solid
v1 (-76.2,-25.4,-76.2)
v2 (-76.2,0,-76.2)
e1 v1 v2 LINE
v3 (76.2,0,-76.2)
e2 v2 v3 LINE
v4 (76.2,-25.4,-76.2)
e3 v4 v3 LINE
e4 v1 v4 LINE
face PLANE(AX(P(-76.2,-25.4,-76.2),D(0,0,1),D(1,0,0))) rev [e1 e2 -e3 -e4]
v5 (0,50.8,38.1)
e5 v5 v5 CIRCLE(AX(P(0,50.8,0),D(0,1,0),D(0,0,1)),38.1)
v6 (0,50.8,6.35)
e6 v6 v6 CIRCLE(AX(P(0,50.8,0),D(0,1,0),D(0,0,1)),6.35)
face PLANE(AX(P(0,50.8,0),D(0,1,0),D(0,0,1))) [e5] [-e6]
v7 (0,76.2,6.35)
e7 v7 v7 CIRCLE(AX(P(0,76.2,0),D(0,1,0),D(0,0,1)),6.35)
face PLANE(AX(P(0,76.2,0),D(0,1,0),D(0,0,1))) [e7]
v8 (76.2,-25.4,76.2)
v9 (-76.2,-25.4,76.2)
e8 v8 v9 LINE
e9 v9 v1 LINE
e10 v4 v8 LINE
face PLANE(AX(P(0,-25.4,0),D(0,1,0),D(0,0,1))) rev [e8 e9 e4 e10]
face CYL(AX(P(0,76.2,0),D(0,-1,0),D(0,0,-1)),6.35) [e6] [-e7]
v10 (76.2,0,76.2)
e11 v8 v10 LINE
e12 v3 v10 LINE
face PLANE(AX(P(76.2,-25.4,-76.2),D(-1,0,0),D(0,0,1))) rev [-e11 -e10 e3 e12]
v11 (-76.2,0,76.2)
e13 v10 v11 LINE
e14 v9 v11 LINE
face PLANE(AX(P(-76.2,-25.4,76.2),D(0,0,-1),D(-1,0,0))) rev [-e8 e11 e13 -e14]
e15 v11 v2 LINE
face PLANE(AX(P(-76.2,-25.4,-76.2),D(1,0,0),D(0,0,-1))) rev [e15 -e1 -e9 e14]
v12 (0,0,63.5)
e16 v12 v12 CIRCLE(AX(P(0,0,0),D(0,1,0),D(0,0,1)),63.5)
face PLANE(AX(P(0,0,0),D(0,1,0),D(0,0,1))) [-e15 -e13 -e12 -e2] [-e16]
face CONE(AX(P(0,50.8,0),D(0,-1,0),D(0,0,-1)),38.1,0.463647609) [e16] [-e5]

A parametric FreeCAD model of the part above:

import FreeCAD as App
import Part
import Sketcher

V = App.Vector
Q = App.Units.Quantity


def add_polygon(sketch, points):
    """Adds a closed chain of lines whose ends are joined by coincident constraints."""
    first, n = sketch.GeometryCount, len(points)
    for a, b in zip(points, points[1:] + points[:1]):
        sketch.addGeometry(Part.LineSegment(App.Vector(*a, 0), App.Vector(*b, 0)), False)
    for i in range(n):
        sketch.addConstraint(Sketcher.Constraint("Coincident", first + i, 2, first + (i + 1) % n, 1))

doc = App.newDocument("Part")
body = doc.addObject("PartDesign::Body", "Body")

# Sketch on XZ plane
sketch1 = body.newObject("Sketcher::SketchObject", "Sketch")
sketch1.AttachmentSupport = (doc.getObject("XZ_Plane"), [""])
sketch1.MapMode = "FlatFace"
sketch1.addGeometry(Part.Circle(V(0, 0, 0), V(0, 0, 1), 63.5), False)
sketch1.addConstraint([
    Sketcher.Constraint("Coincident", 0, 3, -1, 1),
    Sketcher.Constraint("Diameter", 0, Q("5 in")),
])

# Sketch on XZ plane
sketch2 = body.newObject("Sketcher::SketchObject", "Sketch001")
sketch2.AttachmentSupport = (doc.getObject("XZ_Plane"), [""])
sketch2.MapMode = "FlatFace"
sketch2.AttachmentOffset = App.Placement(V(0, 0, -2 * 25.4), App.Rotation())
sketch2.addGeometry(Part.Circle(V(0, 0, 0), V(0, 0, 1), 38.1), False)
sketch2.addConstraint([
    Sketcher.Constraint("Coincident", 0, 3, -1, 1),
    Sketcher.Constraint("Diameter", 0, Q("3 in")),
])

additiveloft = body.newObject("PartDesign::AdditiveLoft", "AdditiveLoft")
additiveloft.Profile = sketch1
additiveloft.Sections = [sketch2]

# Sketch on XZ plane
sketch3 = body.newObject("Sketcher::SketchObject", "Sketch002")
sketch3.AttachmentSupport = (doc.getObject("XZ_Plane"), [""])
sketch3.MapMode = "FlatFace"
add_polygon(sketch3, [(-76.2, 76.2), (-76.2, -76.2), (76.2, -76.2), (76.2, 76.2)])  # lines 0-3
sketch3.addConstraint([
    Sketcher.Constraint("Vertical", 0),
    Sketcher.Constraint("Horizontal", 1),
    Sketcher.Constraint("Vertical", 2),
    Sketcher.Constraint("Horizontal", 3),
    Sketcher.Constraint("Symmetric", 0, 2, 2, 2, -1, 1),
    Sketcher.Constraint("Equal", 3, 0),
    Sketcher.Constraint("DistanceX", 1, 1, 1, 2, Q("6 in")),
])
pad1 = body.newObject("PartDesign::Pad", "Pad")
pad1.Profile = sketch3
pad1.Length = Q("1 in")

# Sketch on XZ plane
sketch4 = body.newObject("Sketcher::SketchObject", "Sketch003")
sketch4.AttachmentSupport = (doc.getObject("XZ_Plane"), [""])
sketch4.MapMode = "FlatFace"
sketch4.AttachmentOffset = App.Placement(V(0, 0, -2 * 25.4), App.Rotation())
sketch4.addGeometry(Part.Circle(V(0, 0, 0), V(0, 0, 1), 6.35), False)
sketch4.addConstraint([
    Sketcher.Constraint("Coincident", 0, 3, -1, 1),
    Sketcher.Constraint("Diameter", 0, Q("0.5 in")),
])
pad2 = body.newObject("PartDesign::Pad", "Pad001")
pad2.Profile = sketch4
pad2.Length = Q("1 in")
pad2.Reversed = True

doc.recompute()
